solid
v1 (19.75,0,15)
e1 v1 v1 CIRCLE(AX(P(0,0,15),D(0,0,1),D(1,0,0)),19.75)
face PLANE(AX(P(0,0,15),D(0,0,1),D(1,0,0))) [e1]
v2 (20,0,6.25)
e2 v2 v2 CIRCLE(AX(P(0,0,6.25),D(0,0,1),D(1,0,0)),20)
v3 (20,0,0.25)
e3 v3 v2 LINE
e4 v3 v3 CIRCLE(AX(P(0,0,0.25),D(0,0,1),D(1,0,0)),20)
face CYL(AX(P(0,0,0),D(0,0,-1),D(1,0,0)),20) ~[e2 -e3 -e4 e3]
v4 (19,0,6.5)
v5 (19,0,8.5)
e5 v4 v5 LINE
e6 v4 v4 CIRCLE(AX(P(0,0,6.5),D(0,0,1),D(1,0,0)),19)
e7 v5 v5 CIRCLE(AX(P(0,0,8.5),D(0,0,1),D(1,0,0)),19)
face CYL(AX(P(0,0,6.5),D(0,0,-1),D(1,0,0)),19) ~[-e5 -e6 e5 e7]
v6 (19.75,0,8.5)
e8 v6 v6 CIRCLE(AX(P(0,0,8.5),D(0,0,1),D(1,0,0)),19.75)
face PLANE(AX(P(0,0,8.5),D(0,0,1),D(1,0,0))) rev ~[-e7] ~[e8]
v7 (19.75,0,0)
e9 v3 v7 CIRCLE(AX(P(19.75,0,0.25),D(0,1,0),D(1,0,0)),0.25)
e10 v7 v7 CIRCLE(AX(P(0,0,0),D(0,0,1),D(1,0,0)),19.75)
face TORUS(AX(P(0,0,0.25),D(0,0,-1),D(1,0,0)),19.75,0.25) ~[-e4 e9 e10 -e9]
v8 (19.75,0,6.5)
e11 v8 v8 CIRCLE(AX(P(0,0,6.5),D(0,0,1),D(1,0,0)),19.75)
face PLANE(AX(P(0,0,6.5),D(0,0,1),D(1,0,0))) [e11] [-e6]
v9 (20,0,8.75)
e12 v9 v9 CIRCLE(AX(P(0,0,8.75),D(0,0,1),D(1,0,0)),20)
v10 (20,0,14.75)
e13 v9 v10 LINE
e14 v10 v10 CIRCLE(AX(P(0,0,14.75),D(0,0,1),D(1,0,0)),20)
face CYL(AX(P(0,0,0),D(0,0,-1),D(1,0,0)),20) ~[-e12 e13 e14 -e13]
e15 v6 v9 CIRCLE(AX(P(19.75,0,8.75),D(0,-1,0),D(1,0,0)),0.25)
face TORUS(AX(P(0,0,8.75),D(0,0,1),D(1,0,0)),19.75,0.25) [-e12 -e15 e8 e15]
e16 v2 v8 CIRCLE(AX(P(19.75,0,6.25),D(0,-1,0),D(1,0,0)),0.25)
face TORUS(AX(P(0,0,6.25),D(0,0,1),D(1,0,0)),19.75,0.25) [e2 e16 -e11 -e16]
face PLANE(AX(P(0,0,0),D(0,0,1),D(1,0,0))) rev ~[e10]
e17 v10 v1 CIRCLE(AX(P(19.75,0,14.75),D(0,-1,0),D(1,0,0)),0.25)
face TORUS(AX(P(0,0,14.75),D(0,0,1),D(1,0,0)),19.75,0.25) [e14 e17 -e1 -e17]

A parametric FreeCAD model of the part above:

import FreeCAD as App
import Part
import Sketcher
Q = App.Units.Quantity


def edges_at(feature, points):
    """Names of the edges that pass closest to the given points."""
    edges = feature.Shape.Edges
    near = lambda p: min(range(len(edges)), key=lambda i: edges[i].distToShape(Part.Vertex(*p))[0])
    return sorted({f"Edge{near(p) + 1}" for p in points})

doc = App.newDocument("Part")
params = doc.addObject("Spreadsheet::Sheet", "Params")
for row, (alias, value) in enumerate([
    ("sketch1_diameter", "40 mm"),
    ("pad1_length", "15 mm"),
    ("sketch2_diameter", "38 mm"),
    ("sketch2_diameter2", "40 mm"),
    ("pocket1_length", "2 mm"),
    ("fillet_radius", "0.25 mm"),
], start=1):
    params.set(f"A{row}", alias)
    params.set(f"B{row}", "=" + value)
    params.setAlias(f"B{row}", alias)

body = doc.addObject("PartDesign::Body", "Body")

# Sketch on XY plane
sketch1 = body.newObject("Sketcher::SketchObject", "Sketch")
sketch1.AttachmentSupport = (doc.getObject("XY_Plane"), [""])
sketch1.MapMode = "FlatFace"
sketch1.addGeometry(Part.Circle(App.Vector(0, 0, 0), App.Vector(0, 0, 1), 20), False)
sketch1.addConstraint(Sketcher.Constraint("Coincident", 0, 3, -1, 1))
sketch1.addConstraint(Sketcher.Constraint("Diameter", 0, Q("40 mm")))
sketch1.setExpression("Constraints[1]", "Params.sketch1_diameter")
pad1 = body.newObject("PartDesign::Pad", "Pad")
pad1.Profile = sketch1
pad1.setExpression("Length", "Params.pad1_length")

# Sketch on XY plane
sketch2 = body.newObject("Sketcher::SketchObject", "Sketch001")
sketch2.AttachmentSupport = (doc.getObject("XY_Plane"), [""])
sketch2.MapMode = "FlatFace"
sketch2.AttachmentOffset = App.Placement(App.Vector(0, 0, 6.5), App.Rotation())
sketch2.addGeometry(Part.Circle(App.Vector(0, 0, 0), App.Vector(0, 0, 1), 20), False)
sketch2.addGeometry(Part.Circle(App.Vector(0, 0, 0), App.Vector(0, 0, 1), 19), False)
sketch2.addConstraint(Sketcher.Constraint("Coincident", 0, 3, -1, 1))
sketch2.addConstraint(Sketcher.Constraint("Coincident", 1, 3, -1, 1))
sketch2.addConstraint(Sketcher.Constraint("Diameter", 1, Q("38 mm")))
sketch2.addConstraint(Sketcher.Constraint("Diameter", 0, Q("40 mm")))
sketch2.setExpression("Constraints[2]", "Params.sketch2_diameter")
sketch2.setExpression("Constraints[3]", "Params.sketch2_diameter2")
pocket1 = body.newObject("PartDesign::Pocket", "Pocket")
pocket1.Profile = sketch2
pocket1.setExpression("Length", "Params.pocket1_length")
pocket1.Reversed = True
doc.recompute()

fillet = body.newObject("PartDesign::Fillet", "Fillet")
fillet.Base = (pocket1, edges_at(pocket1, [
    (-20, 0, 6.5),
    (-20, 0, 8.5),
    (-20, 0, 0),
    (-20, 0, 15),
]))
fillet.setExpression("Radius", "Params.fillet_radius")

doc.recompute()
